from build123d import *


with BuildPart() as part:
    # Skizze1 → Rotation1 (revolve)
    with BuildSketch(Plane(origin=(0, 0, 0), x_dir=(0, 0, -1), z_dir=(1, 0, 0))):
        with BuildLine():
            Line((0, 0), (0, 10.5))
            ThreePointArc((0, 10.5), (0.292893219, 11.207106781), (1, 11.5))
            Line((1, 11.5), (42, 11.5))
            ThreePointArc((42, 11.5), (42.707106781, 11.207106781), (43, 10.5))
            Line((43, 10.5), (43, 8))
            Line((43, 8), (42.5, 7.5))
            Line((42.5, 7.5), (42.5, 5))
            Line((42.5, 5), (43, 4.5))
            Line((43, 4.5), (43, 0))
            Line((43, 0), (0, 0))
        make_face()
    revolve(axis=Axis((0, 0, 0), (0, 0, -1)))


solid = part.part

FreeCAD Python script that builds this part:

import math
import FreeCAD as App
import Part
import Sketcher
Q = App.Units.Quantity

doc = App.newDocument("Part")
body = doc.addObject("PartDesign::Body", "Body")

# Sketch on YZ plane
sketch1 = body.newObject("Sketcher::SketchObject", "Sketch")
sketch1.AttachmentSupport = (doc.getObject("YZ_Plane"), [""])
sketch1.MapMode = "FlatFace"
sketch1.addGeometry([
    Part.LineSegment(App.Vector(10.5, 0, 0), App.Vector(0, 0, 0)),  # 0
    Part.LineSegment(App.Vector(0, 0, 0), App.Vector(0, -43, 0)),  # 1
    Part.LineSegment(App.Vector(0, -43, 0), App.Vector(4.5, -43, 0)),  # 2
    Part.LineSegment(App.Vector(4.5, -43, 0), App.Vector(5, -42.5, 0)),  # 3
    Part.LineSegment(App.Vector(5, -42.5, 0), App.Vector(7.5, -42.5, 0)),  # 4
    Part.LineSegment(App.Vector(7.5, -42.5, 0), App.Vector(8, -43, 0)),  # 5
    Part.LineSegment(App.Vector(8, -43, 0), App.Vector(10.5, -43, 0)),  # 6
    Part.ArcOfCircle(Part.Circle(App.Vector(10.5, -42, 0), App.Vector(0, 0, 1), 1), math.radians(-90), math.radians(0)),  # 7
    Part.LineSegment(App.Vector(11.5, -42, 0), App.Vector(11.5, -1, 0)),  # 8
    Part.ArcOfCircle(Part.Circle(App.Vector(10.5, -1, 0), App.Vector(0, 0, 1), 1), math.radians(0), math.radians(90)),  # 9
], False)
sketch1.addConstraint([
    Sketcher.Constraint("Coincident", 0, 2, 1, 1),
    Sketcher.Constraint("Coincident", 1, 2, 2, 1),
    Sketcher.Constraint("Coincident", 2, 2, 3, 1),
    Sketcher.Constraint("Coincident", 3, 2, 4, 1),
    Sketcher.Constraint("Coincident", 4, 2, 5, 1),
    Sketcher.Constraint("Coincident", 5, 2, 6, 1),
    Sketcher.Constraint("Tangent", 6, 2, 7, 1),
    Sketcher.Constraint("Tangent", 7, 2, 8, 1),
    Sketcher.Constraint("Tangent", 8, 2, 9, 1),
    Sketcher.Constraint("Tangent", 9, 2, 0, 1),
    Sketcher.Constraint("Horizontal", 0),
    Sketcher.Constraint("Vertical", 1),
    Sketcher.Constraint("Horizontal", 2),
    Sketcher.Constraint("Horizontal", 4),
    Sketcher.Constraint("Horizontal", 6),
    Sketcher.Constraint("Vertical", 8),
    Sketcher.Constraint("Coincident", 0, 2, -1, 1),
    Sketcher.Constraint("Equal", 7, 9),
    Sketcher.Constraint("Perpendicular", 3, 5),
    Sketcher.Constraint("Horizontal", 2, 2, 5, 2),
    Sketcher.Constraint("Equal", 4, 6),
    Sketcher.Constraint("Equal", 3, 5),
    Sketcher.Constraint("Radius", 7, Q("1 mm")),
    Sketcher.Constraint("DistanceY", 1, 2, 1, 1, Q("43 mm")),
    Sketcher.Constraint("DistanceX", 0, 2, 0, 1, Q("10.5 mm")),
    Sketcher.Constraint("DistanceX", 2, 1, 2, 2, Q("4.5 mm")),
    Sketcher.Constraint("DistanceX", 4, 1, 4, 2, Q("2.5 mm")),
])
revolution = body.newObject("PartDesign::Revolution", "Revolution")
revolution.Profile = sketch1
revolution.ReferenceAxis = (sketch1, ["V_Axis"])
revolution.Angle = 360

doc.recompute()
